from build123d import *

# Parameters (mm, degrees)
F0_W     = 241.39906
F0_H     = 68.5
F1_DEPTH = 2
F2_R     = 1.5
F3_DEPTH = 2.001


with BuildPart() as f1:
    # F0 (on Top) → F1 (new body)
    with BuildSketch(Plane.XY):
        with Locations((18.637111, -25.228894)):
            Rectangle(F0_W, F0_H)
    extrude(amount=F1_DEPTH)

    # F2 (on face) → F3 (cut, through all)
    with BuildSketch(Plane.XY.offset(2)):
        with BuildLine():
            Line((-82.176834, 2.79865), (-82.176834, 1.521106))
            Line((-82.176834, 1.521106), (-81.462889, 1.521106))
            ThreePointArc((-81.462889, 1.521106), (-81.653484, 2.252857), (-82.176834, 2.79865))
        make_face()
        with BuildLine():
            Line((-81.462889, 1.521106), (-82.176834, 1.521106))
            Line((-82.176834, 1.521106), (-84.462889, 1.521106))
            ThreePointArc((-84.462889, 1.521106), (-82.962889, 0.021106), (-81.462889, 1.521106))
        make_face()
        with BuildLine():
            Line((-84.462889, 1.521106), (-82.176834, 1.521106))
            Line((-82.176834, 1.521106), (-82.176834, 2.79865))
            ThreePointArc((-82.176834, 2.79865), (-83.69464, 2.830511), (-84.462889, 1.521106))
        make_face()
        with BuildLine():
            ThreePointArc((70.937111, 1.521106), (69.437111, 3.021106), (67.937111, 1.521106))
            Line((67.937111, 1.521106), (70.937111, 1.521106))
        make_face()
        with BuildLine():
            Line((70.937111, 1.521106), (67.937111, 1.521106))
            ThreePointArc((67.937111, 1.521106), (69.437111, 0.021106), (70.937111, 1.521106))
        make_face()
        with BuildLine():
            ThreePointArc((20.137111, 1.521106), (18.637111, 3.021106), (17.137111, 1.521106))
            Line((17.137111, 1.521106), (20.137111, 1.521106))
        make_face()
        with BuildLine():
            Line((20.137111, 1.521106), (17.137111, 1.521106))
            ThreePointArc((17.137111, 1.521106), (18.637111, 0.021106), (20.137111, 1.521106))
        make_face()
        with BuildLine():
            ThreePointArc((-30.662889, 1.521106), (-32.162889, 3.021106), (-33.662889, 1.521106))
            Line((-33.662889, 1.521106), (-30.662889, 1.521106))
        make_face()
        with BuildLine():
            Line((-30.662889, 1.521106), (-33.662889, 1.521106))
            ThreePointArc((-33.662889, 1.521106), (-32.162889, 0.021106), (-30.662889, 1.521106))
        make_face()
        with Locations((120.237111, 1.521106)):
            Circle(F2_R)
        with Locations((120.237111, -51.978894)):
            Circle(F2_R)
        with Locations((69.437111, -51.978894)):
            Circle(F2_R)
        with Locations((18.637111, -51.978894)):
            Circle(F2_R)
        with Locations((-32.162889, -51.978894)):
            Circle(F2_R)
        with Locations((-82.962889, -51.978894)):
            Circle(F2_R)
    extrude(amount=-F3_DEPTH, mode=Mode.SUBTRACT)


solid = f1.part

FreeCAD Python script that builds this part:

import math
import FreeCAD as App
import Part
import Sketcher

V = App.Vector
Q = App.Units.Quantity


def add_polygon(sketch, points):
    """Adds a closed chain of lines whose ends are joined by coincident constraints."""
    first, n = sketch.GeometryCount, len(points)
    for a, b in zip(points, points[1:] + points[:1]):
        sketch.addGeometry(Part.LineSegment(App.Vector(*a, 0), App.Vector(*b, 0)), False)
    for i in range(n):
        sketch.addConstraint(Sketcher.Constraint("Coincident", first + i, 2, first + (i + 1) % n, 1))

doc = App.newDocument("Part")
body = doc.addObject("PartDesign::Body", "Body")

sketch1 = doc.addObject("Sketcher::SketchObject", "Sketch")
body.addObject(sketch1)
sketch1.AttachmentSupport = (doc.XY_Plane, [""])
sketch1.MapMode = "FlatFace"
add_polygon(sketch1, [(-102.062419, 9.021106), (-102.062419, -59.478894), (139.336641, -59.478894), (139.336641, 9.021106)])
sketch1.addConstraint(Sketcher.Constraint("Vertical", 0))
sketch1.addConstraint(Sketcher.Constraint("Horizontal", 1))
sketch1.addConstraint(Sketcher.Constraint("Vertical", 2))
sketch1.addConstraint(Sketcher.Constraint("Horizontal", 3))
sketch1.addConstraint(Sketcher.Constraint("DistanceY", 0, 2, 0, 1, Q("68.5 mm")))
sketch1.addConstraint(Sketcher.Constraint("DistanceX", 1, 1, 1, 2, Q("241.39906 mm")))
sketch1.addConstraint(Sketcher.Constraint("DistanceX", 0, 2, -1, 1, Q("102.062419 mm")))
sketch1.addConstraint(Sketcher.Constraint("DistanceY", 0, 2, -1, 1, Q("59.478894 mm")))
pad1 = doc.addObject("PartDesign::Pad", "Pad")
body.addObject(pad1)
pad1.Profile = sketch1
pad1.Length = 2

sketch2 = doc.addObject("Sketcher::SketchObject", "Sketch001")
body.addObject(sketch2)
sketch2.AttachmentSupport = (doc.XY_Plane, [""])
sketch2.MapMode = "FlatFace"
sketch2.AttachmentOffset = App.Placement(V(0, 0, 2), App.Rotation())
sketch2.addGeometry(Part.ArcOfCircle(Part.Circle(V(-82.962889, 1.521106, 0), V(0, 0, 1), 1.5), math.radians(180), math.radians(360)), False)
sketch2.addGeometry(Part.ArcOfCircle(Part.Circle(V(-82.962888, 1.521107, 0), V(0, 0, 1), 1.499999), math.radians(-0.000033), math.radians(58.396601)), False)
sketch2.addGeometry(Part.ArcOfCircle(Part.Circle(V(-82.962889, 1.521106, 0), V(0, 0, 1), 1.5), math.radians(58.396589), math.radians(180.000013)), False)
sketch2.addGeometry(Part.Circle(V(69.437111, 1.521106, 0), V(0, 0, 1), 1.5), False)
sketch2.addGeometry(Part.Circle(V(18.637111, 1.521106, 0), V(0, 0, 1), 1.5), False)
sketch2.addGeometry(Part.Circle(V(-32.162889, 1.521106, 0), V(0, 0, 1), 1.5), False)
sketch2.addGeometry(Part.Circle(V(120.237111, 1.521106, 0), V(0, 0, 1), 1.5), False)
sketch2.addGeometry(Part.Circle(V(120.237111, -51.978894, 0), V(0, 0, 1), 1.5), False)
sketch2.addGeometry(Part.Circle(V(69.437111, -51.978894, 0), V(0, 0, 1), 1.5), False)
sketch2.addGeometry(Part.Circle(V(18.637111, -51.978894, 0), V(0, 0, 1), 1.5), False)
sketch2.addGeometry(Part.Circle(V(-32.162889, -51.978894, 0), V(0, 0, 1), 1.5), False)
sketch2.addGeometry(Part.Circle(V(-82.962889, -51.978894, 0), V(0, 0, 1), 1.5), False)
sketch2.addConstraint(Sketcher.Constraint("Tangent", 0, 2, 1, 1))
sketch2.addConstraint(Sketcher.Constraint("Tangent", 1, 2, 2, 1))
sketch2.addConstraint(Sketcher.Constraint("Tangent", 2, 2, 0, 1))
sketch2.addConstraint(Sketcher.Constraint("Equal", 2, 3))
sketch2.addConstraint(Sketcher.Constraint("Equal", 3, 4))
sketch2.addConstraint(Sketcher.Constraint("Equal", 4, 5))
sketch2.addConstraint(Sketcher.Constraint("Equal", 5, 6))
sketch2.addConstraint(Sketcher.Constraint("Equal", 6, 7))
sketch2.addConstraint(Sketcher.Constraint("Equal", 7, 8))
sketch2.addConstraint(Sketcher.Constraint("Equal", 8, 9))
sketch2.addConstraint(Sketcher.Constraint("Equal", 9, 10))
sketch2.addConstraint(Sketcher.Constraint("Equal", 10, 11))
sketch2.addConstraint(Sketcher.Constraint("Horizontal", 2, 3, 3, 3))
sketch2.addConstraint(Sketcher.Constraint("Horizontal", 3, 3, 4, 3))
sketch2.addConstraint(Sketcher.Constraint("Horizontal", 4, 3, 5, 3))
sketch2.addConstraint(Sketcher.Constraint("Horizontal", 5, 3, 6, 3))
sketch2.addConstraint(Sketcher.Constraint("Horizontal", 7, 3, 8, 3))
sketch2.addConstraint(Sketcher.Constraint("Horizontal", 8, 3, 9, 3))
sketch2.addConstraint(Sketcher.Constraint("Horizontal", 9, 3, 10, 3))
sketch2.addConstraint(Sketcher.Constraint("Horizontal", 10, 3, 11, 3))
sketch2.addConstraint(Sketcher.Constraint("Horizontal", 6, 3, 0, 2))
sketch2.addConstraint(Sketcher.Constraint("Horizontal", 0, 2, 2, 2))
sketch2.addConstraint(Sketcher.Constraint("Vertical", 6, 3, 7, 3))
sketch2.addConstraint(Sketcher.Constraint("Vertical", 3, 3, 8, 3))
sketch2.addConstraint(Sketcher.Constraint("Vertical", 4, 3, 9, 3))
sketch2.addConstraint(Sketcher.Constraint("Vertical", 5, 3, 10, 3))
sketch2.addConstraint(Sketcher.Constraint("Vertical", 2, 3, 11, 3))
sketch2.addConstraint(Sketcher.Constraint("Diameter", 3, Q("3 mm")))
sketch2.addConstraint(Sketcher.Constraint("DistanceX", 1, 3, 3, 3, Q("152.399999 mm")))
sketch2.addConstraint(Sketcher.Constraint("DistanceX", 4, 3, 3, 3, Q("50.8 mm")))
sketch2.addConstraint(Sketcher.Constraint("DistanceX", 1, 3, 5, 3, Q("50.799999 mm")))
sketch2.addConstraint(Sketcher.Constraint("DistanceX", 3, 3, 6, 3, Q("50.8 mm")))
sketch2.addConstraint(Sketcher.Constraint("DistanceY", 7, 3, 6, 3, Q("53.5 mm")))
sketch2.addConstraint(Sketcher.Constraint("DistanceX", 0, 3, -1, 1, Q("82.962889 mm")))
sketch2.addConstraint(Sketcher.Constraint("DistanceY", -1, 1, 1, 2, Q("2.79865 mm")))
sketch2.addConstraint(Sketcher.Constraint("DistanceY", -1, 1, 0, 3, Q("1.521106 mm")))
pocket1 = doc.addObject("PartDesign::Pocket", "Pocket")
body.addObject(pocket1)
pocket1.Profile = sketch2
pocket1.Type = "ThroughAll"

doc.recompute()
